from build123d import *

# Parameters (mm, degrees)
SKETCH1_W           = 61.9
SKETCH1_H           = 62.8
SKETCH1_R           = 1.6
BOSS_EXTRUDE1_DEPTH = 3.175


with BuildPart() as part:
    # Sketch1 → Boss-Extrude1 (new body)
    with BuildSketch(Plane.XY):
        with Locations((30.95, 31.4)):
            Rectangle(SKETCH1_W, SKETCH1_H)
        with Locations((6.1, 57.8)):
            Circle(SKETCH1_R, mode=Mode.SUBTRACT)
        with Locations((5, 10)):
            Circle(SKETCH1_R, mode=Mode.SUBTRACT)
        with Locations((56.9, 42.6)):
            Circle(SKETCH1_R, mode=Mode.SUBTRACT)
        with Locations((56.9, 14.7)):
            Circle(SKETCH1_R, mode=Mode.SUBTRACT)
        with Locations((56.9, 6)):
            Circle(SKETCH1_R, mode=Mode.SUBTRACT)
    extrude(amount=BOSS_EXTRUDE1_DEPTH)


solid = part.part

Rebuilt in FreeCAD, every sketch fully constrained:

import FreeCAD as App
import Part
import Sketcher
Q = App.Units.Quantity


def add_polygon(sketch, points):
    """Adds a closed chain of lines whose ends are joined by coincident constraints."""
    first, n = sketch.GeometryCount, len(points)
    for a, b in zip(points, points[1:] + points[:1]):
        sketch.addGeometry(Part.LineSegment(App.Vector(*a, 0), App.Vector(*b, 0)), False)
    for i in range(n):
        sketch.addConstraint(Sketcher.Constraint("Coincident", first + i, 2, first + (i + 1) % n, 1))

doc = App.newDocument("Part")
body = doc.addObject("PartDesign::Body", "Body")

sketch1 = doc.addObject("Sketcher::SketchObject", "Sketch")
body.addObject(sketch1)
sketch1.AttachmentSupport = (doc.XY_Plane, [""])
sketch1.MapMode = "FlatFace"
add_polygon(sketch1, [(0, 62.8), (0, 0), (61.9, 0), (61.9, 62.8)])
sketch1.addGeometry(Part.Circle(App.Vector(5, 10, 0), App.Vector(0, 0, 1), 1.6), False)
sketch1.addGeometry(Part.Circle(App.Vector(56.9, 6, 0), App.Vector(0, 0, 1), 1.6), False)
sketch1.addGeometry(Part.Circle(App.Vector(56.9, 14.7, 0), App.Vector(0, 0, 1), 1.6), False)
sketch1.addGeometry(Part.Circle(App.Vector(6.1, 57.8, 0), App.Vector(0, 0, 1), 1.6), False)
sketch1.addGeometry(Part.Circle(App.Vector(56.9, 42.6, 0), App.Vector(0, 0, 1), 1.6), False)
sketch1.addConstraint(Sketcher.Constraint("Vertical", 0))
sketch1.addConstraint(Sketcher.Constraint("Horizontal", 1))
sketch1.addConstraint(Sketcher.Constraint("Vertical", 2))
sketch1.addConstraint(Sketcher.Constraint("Horizontal", 3))
sketch1.addConstraint(Sketcher.Constraint("Coincident", 0, 2, -1, 1))
sketch1.addConstraint(Sketcher.Constraint("Equal", 4, 5))
sketch1.addConstraint(Sketcher.Constraint("Equal", 5, 6))
sketch1.addConstraint(Sketcher.Constraint("Equal", 6, 7))
sketch1.addConstraint(Sketcher.Constraint("Equal", 7, 8))
sketch1.addConstraint(Sketcher.Constraint("Vertical", 5, 3, 6, 3))
sketch1.addConstraint(Sketcher.Constraint("Vertical", 6, 3, 8, 3))
sketch1.addConstraint(Sketcher.Constraint("Diameter", 4, Q("3.2 mm")))
sketch1.addConstraint(Sketcher.Constraint("DistanceX", 1, 1, 1, 2, Q("61.9 mm")))
sketch1.addConstraint(Sketcher.Constraint("DistanceY", 0, 2, 0, 1, Q("62.8 mm")))
sketch1.addConstraint(Sketcher.Constraint("DistanceX", -1, 1, 4, 3, Q("5 mm")))
sketch1.addConstraint(Sketcher.Constraint("DistanceY", -1, 1, 4, 3, Q("10 mm")))
sketch1.addConstraint(Sketcher.Constraint("DistanceY", -1, 1, 5, 3, Q("6 mm")))
sketch1.addConstraint(Sketcher.Constraint("DistanceX", 5, 3, 1, 2, Q("5 mm")))
sketch1.addConstraint(Sketcher.Constraint("DistanceY", 7, 3, 2, 2, Q("5 mm")))
sketch1.addConstraint(Sketcher.Constraint("DistanceY", -1, 1, 6, 3, Q("14.7 mm")))
sketch1.addConstraint(Sketcher.Constraint("DistanceX", -1, 1, 7, 3, Q("6.1 mm")))
sketch1.addConstraint(Sketcher.Constraint("DistanceY", -1, 1, 8, 3, Q("42.6 mm")))
pad1 = doc.addObject("PartDesign::Pad", "Pad")
body.addObject(pad1)
pad1.Profile = sketch1
pad1.Length = 3.175

doc.recompute()
